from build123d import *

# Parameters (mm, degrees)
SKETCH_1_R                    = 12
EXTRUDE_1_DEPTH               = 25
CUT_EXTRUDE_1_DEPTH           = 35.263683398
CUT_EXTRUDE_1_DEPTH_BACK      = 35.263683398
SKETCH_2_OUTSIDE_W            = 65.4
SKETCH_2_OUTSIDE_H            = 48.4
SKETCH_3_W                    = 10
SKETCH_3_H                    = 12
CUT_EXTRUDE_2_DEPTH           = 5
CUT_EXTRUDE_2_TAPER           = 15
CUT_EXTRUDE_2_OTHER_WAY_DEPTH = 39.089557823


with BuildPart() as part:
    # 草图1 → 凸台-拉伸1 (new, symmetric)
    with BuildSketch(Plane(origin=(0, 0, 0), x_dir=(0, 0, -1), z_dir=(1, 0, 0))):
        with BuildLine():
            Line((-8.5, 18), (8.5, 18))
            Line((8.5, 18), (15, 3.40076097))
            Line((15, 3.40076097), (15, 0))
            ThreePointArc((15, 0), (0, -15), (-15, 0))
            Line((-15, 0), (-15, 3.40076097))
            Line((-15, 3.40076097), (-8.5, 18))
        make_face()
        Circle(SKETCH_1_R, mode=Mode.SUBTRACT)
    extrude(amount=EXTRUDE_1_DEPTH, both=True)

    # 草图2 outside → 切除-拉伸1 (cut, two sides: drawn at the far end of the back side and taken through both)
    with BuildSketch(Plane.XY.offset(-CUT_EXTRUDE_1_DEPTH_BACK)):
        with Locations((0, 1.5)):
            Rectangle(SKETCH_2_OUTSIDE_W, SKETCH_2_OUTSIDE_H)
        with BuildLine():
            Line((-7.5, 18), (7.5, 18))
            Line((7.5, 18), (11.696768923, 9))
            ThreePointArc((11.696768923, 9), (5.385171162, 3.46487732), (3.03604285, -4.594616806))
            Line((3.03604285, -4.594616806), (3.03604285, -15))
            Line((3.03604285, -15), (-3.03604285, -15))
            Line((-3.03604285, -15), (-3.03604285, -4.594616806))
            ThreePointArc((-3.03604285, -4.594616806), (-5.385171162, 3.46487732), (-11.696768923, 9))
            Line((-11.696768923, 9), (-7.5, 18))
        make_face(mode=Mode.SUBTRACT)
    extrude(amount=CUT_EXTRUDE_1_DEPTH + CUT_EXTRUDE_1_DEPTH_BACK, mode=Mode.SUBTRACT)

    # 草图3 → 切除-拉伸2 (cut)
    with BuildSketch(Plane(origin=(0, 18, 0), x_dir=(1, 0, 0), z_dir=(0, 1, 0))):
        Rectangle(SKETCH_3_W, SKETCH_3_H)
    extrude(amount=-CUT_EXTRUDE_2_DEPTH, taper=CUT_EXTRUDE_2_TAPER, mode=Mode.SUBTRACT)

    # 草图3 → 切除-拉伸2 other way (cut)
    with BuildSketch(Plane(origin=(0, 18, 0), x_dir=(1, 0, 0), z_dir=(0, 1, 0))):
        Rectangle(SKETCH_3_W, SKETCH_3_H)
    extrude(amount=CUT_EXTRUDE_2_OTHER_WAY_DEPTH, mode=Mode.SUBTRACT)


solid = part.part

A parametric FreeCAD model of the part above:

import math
import FreeCAD as App
import Part
import Sketcher
from FreeCAD import Vector
Q = App.Units.Quantity


def add_polygon(sketch, points):
    """Adds a closed chain of lines whose ends are joined by coincident constraints."""
    first, n = sketch.GeometryCount, len(points)
    for a, b in zip(points, points[1:] + points[:1]):
        sketch.addGeometry(Part.LineSegment(App.Vector(*a, 0), App.Vector(*b, 0)), False)
    for i in range(n):
        sketch.addConstraint(Sketcher.Constraint("Coincident", first + i, 2, first + (i + 1) % n, 1))

doc = App.newDocument("Part")
body = doc.addObject("PartDesign::Body", "Body")

# Sketch on YZ plane
sketch1 = doc.addObject("Sketcher::SketchObject", "Sketch")
body.addObject(sketch1)
sketch1.AttachmentSupport = (doc.YZ_Plane, [""])
sketch1.MapMode = "FlatFace"
sketch1.addGeometry([
    Part.LineSegment(Vector(18, -8.5, 0), Vector(18, 8.5, 0)),  # 0
    Part.LineSegment(Vector(18, 8.5, 0), Vector(3.4, 15, 0)),  # 1
    Part.LineSegment(Vector(3.4, 15, 0), Vector(0, 15, 0)),  # 2
    Part.ArcOfCircle(Part.Circle(Vector(0, 0, 0), Vector(0, 0, 1), 15), math.radians(90), math.radians(270)),  # 3
    Part.LineSegment(Vector(0, -15, 0), Vector(3.4, -15, 0)),  # 4
    Part.LineSegment(Vector(3.4, -15, 0), Vector(18, -8.5, 0)),  # 5
    Part.Circle(Vector(0, 0, 0), Vector(0, 0, 1), 12),  # 6
], False)
sketch1.addConstraint([
    Sketcher.Constraint("Coincident", 0, 2, 1, 1),
    Sketcher.Constraint("Coincident", 1, 2, 2, 1),
    Sketcher.Constraint("Tangent", 2, 2, 3, 1),
    Sketcher.Constraint("Tangent", 3, 2, 4, 1),
    Sketcher.Constraint("Coincident", 4, 2, 5, 1),
    Sketcher.Constraint("Coincident", 5, 2, 0, 1),
    Sketcher.Constraint("Vertical", 0),
    Sketcher.Constraint("Horizontal", 2),
    Sketcher.Constraint("Horizontal", 4),
    Sketcher.Constraint("Coincident", 3, 3, -1, 1),
    Sketcher.Constraint("Coincident", 6, 3, -1, 1),
    Sketcher.Constraint("Vertical", 1, 2, 4, 2),
    Sketcher.Constraint("Equal", 1, 5),
    Sketcher.Constraint("Diameter", 6, Q("24 mm")),
    Sketcher.Constraint("Radius", 3, Q("15 mm")),
    Sketcher.Constraint("DistanceY", 0, 1, 0, 2, Q("17 mm")),
    Sketcher.Constraint("Angle", 1, Q("156 deg")),
    Sketcher.Constraint("DistanceX", -1, 1, 0, 2, Q("18 mm")),
])
pad1 = doc.addObject("PartDesign::Pad", "Pad")
body.addObject(pad1)
pad1.Profile = sketch1
pad1.Length = 50
pad1.Midplane = True

# Sketch on XY plane
sketch2 = doc.addObject("Sketcher::SketchObject", "Sketch001")
body.addObject(sketch2)
sketch2.AttachmentSupport = (doc.XY_Plane, [""])
sketch2.MapMode = "FlatFace"
add_polygon(sketch2, [(-33, 26), (-33, -23), (33, -23), (33, 26)])  # lines 0-3
sketch2.addGeometry(Part.LineSegment(Vector(-12, 9, 0), Vector(-8, 18, 0)), False)  # 4
sketch2.addGeometry(Part.LineSegment(Vector(-8, 18, 0), Vector(8, 18, 0)), False)  # 5
sketch2.addGeometry(Part.LineSegment(Vector(8, 18, 0), Vector(12, 9, 0)), False)  # 6
sketch2.addGeometry(Part.ArcOfCircle(Part.Circle(Vector(18, -5, 0), Vector(0, 0, 1), 15), math.radians(115), math.radians(180)), False)  # 7
sketch2.addGeometry(Part.LineSegment(Vector(3, -5, 0), Vector(3, -15, 0)), False)  # 8
sketch2.addGeometry(Part.LineSegment(Vector(3, -15, 0), Vector(-3, -15, 0)), False)  # 9
sketch2.addGeometry(Part.LineSegment(Vector(-3, -15, 0), Vector(-3, -5, 0)), False)  # 10
sketch2.addGeometry(Part.ArcOfCircle(Part.Circle(Vector(-18, -5, 0), Vector(0, 0, 1), 15), math.radians(0), math.radians(65)), False)  # 11
sketch2.addConstraint([
    Sketcher.Constraint("Coincident", 4, 2, 5, 1),
    Sketcher.Constraint("Coincident", 5, 2, 6, 1),
    Sketcher.Constraint("Coincident", 6, 2, 7, 1),
    Sketcher.Constraint("Tangent", 7, 2, 8, 1),
    Sketcher.Constraint("Coincident", 8, 2, 9, 1),
    Sketcher.Constraint("Coincident", 9, 2, 10, 1),
    Sketcher.Constraint("Tangent", 10, 2, 11, 1),
    Sketcher.Constraint("Coincident", 11, 2, 4, 1),
    Sketcher.Constraint("Vertical", 0),
    Sketcher.Constraint("Horizontal", 1),
    Sketcher.Constraint("Vertical", 2),
    Sketcher.Constraint("Horizontal", 3),
    Sketcher.Constraint("Horizontal", 5),
    Sketcher.Constraint("Vertical", 8),
    Sketcher.Constraint("Horizontal", 9),
    Sketcher.Constraint("Vertical", 10),
    Sketcher.Constraint("Equal", 7, 11),
    Sketcher.Constraint("Symmetric", 7, 3, 11, 3, -2),
    Sketcher.Constraint("Horizontal", 6, 2, 11, 2),
    Sketcher.Constraint("Equal", 4, 6),
    Sketcher.Constraint("Radius", 7, Q("15 mm")),
    Sketcher.Constraint("DistanceX", 5, 1, 5, 2, Q("15 mm")),
    Sketcher.Constraint("Angle", 4, Q("65 deg")),
    Sketcher.Constraint("DistanceX", 1, 1, 1, 2, Q("65.4 mm")),
    Sketcher.Constraint("DistanceY", 0, 2, 0, 1, Q("48.4 mm")),
    Sketcher.Constraint("DistanceY", -1, 1, 4, 2, Q("18 mm")),
    Sketcher.Constraint("DistanceY", -1, 1, 6, 2, Q("9 mm")),
    Sketcher.Constraint("DistanceY", 8, 2, -1, 1, Q("15 mm")),
    Sketcher.Constraint("DistanceX", 0, 2, -1, 1, Q("32.7 mm")),
    Sketcher.Constraint("DistanceY", 0, 2, -1, 1, Q("22.7 mm")),
    Sketcher.Constraint("DistanceX", 9, 2, 9, 1, Q("6.072086 mm")),
])
pocket1 = doc.addObject("PartDesign::Pocket", "Pocket")
body.addObject(pocket1)
pocket1.Profile = sketch2
pocket1.Type = "ThroughAll"
pocket1.Midplane = True

# Sketch on XZ plane
sketch3 = doc.addObject("Sketcher::SketchObject", "Sketch002")
body.addObject(sketch3)
sketch3.AttachmentSupport = (doc.XZ_Plane, [""])
sketch3.MapMode = "FlatFace"
sketch3.AttachmentOffset = App.Placement(Vector(0, 0, -18), App.Rotation())
add_polygon(sketch3, [(-5, -6), (-5, 6), (5, 6), (5, -6)])  # lines 0-3
sketch3.addConstraint([
    Sketcher.Constraint("Vertical", 0),
    Sketcher.Constraint("Horizontal", 1),
    Sketcher.Constraint("Vertical", 2),
    Sketcher.Constraint("Horizontal", 3),
    Sketcher.Constraint("Symmetric", 0, 2, 2, 2, -1, 1),
    Sketcher.Constraint("DistanceX", 1, 1, 1, 2, Q("10 mm")),
    Sketcher.Constraint("DistanceY", 0, 1, 0, 2, Q("12 mm")),
])
pocket2 = doc.addObject("PartDesign::Pocket", "Pocket001")
body.addObject(pocket2)
pocket2.Profile = sketch3
pocket2.Length = 5
pocket2.Reversed = True
pocket2.TaperAngle = -15

# Sketch on XZ plane
sketch4 = doc.addObject("Sketcher::SketchObject", "Sketch003")
body.addObject(sketch4)
sketch4.AttachmentSupport = (doc.XZ_Plane, [""])
sketch4.MapMode = "FlatFace"
sketch4.AttachmentOffset = App.Placement(Vector(0, 0, -18), App.Rotation())
add_polygon(sketch4, [(-5, -6), (-5, 6), (5, 6), (5, -6)])  # lines 0-3
sketch4.addConstraint([
    Sketcher.Constraint("Vertical", 0),
    Sketcher.Constraint("Horizontal", 1),
    Sketcher.Constraint("Vertical", 2),
    Sketcher.Constraint("Horizontal", 3),
    Sketcher.Constraint("Symmetric", 0, 2, 2, 2, -1, 1),
    Sketcher.Constraint("DistanceX", 1, 1, 1, 2, Q("10 mm")),
    Sketcher.Constraint("DistanceY", 0, 1, 0, 2, Q("12 mm")),
])
pocket3 = doc.addObject("PartDesign::Pocket", "Pocket002")
body.addObject(pocket3)
pocket3.Profile = sketch4
pocket3.Length = 39.089558

doc.recompute()
